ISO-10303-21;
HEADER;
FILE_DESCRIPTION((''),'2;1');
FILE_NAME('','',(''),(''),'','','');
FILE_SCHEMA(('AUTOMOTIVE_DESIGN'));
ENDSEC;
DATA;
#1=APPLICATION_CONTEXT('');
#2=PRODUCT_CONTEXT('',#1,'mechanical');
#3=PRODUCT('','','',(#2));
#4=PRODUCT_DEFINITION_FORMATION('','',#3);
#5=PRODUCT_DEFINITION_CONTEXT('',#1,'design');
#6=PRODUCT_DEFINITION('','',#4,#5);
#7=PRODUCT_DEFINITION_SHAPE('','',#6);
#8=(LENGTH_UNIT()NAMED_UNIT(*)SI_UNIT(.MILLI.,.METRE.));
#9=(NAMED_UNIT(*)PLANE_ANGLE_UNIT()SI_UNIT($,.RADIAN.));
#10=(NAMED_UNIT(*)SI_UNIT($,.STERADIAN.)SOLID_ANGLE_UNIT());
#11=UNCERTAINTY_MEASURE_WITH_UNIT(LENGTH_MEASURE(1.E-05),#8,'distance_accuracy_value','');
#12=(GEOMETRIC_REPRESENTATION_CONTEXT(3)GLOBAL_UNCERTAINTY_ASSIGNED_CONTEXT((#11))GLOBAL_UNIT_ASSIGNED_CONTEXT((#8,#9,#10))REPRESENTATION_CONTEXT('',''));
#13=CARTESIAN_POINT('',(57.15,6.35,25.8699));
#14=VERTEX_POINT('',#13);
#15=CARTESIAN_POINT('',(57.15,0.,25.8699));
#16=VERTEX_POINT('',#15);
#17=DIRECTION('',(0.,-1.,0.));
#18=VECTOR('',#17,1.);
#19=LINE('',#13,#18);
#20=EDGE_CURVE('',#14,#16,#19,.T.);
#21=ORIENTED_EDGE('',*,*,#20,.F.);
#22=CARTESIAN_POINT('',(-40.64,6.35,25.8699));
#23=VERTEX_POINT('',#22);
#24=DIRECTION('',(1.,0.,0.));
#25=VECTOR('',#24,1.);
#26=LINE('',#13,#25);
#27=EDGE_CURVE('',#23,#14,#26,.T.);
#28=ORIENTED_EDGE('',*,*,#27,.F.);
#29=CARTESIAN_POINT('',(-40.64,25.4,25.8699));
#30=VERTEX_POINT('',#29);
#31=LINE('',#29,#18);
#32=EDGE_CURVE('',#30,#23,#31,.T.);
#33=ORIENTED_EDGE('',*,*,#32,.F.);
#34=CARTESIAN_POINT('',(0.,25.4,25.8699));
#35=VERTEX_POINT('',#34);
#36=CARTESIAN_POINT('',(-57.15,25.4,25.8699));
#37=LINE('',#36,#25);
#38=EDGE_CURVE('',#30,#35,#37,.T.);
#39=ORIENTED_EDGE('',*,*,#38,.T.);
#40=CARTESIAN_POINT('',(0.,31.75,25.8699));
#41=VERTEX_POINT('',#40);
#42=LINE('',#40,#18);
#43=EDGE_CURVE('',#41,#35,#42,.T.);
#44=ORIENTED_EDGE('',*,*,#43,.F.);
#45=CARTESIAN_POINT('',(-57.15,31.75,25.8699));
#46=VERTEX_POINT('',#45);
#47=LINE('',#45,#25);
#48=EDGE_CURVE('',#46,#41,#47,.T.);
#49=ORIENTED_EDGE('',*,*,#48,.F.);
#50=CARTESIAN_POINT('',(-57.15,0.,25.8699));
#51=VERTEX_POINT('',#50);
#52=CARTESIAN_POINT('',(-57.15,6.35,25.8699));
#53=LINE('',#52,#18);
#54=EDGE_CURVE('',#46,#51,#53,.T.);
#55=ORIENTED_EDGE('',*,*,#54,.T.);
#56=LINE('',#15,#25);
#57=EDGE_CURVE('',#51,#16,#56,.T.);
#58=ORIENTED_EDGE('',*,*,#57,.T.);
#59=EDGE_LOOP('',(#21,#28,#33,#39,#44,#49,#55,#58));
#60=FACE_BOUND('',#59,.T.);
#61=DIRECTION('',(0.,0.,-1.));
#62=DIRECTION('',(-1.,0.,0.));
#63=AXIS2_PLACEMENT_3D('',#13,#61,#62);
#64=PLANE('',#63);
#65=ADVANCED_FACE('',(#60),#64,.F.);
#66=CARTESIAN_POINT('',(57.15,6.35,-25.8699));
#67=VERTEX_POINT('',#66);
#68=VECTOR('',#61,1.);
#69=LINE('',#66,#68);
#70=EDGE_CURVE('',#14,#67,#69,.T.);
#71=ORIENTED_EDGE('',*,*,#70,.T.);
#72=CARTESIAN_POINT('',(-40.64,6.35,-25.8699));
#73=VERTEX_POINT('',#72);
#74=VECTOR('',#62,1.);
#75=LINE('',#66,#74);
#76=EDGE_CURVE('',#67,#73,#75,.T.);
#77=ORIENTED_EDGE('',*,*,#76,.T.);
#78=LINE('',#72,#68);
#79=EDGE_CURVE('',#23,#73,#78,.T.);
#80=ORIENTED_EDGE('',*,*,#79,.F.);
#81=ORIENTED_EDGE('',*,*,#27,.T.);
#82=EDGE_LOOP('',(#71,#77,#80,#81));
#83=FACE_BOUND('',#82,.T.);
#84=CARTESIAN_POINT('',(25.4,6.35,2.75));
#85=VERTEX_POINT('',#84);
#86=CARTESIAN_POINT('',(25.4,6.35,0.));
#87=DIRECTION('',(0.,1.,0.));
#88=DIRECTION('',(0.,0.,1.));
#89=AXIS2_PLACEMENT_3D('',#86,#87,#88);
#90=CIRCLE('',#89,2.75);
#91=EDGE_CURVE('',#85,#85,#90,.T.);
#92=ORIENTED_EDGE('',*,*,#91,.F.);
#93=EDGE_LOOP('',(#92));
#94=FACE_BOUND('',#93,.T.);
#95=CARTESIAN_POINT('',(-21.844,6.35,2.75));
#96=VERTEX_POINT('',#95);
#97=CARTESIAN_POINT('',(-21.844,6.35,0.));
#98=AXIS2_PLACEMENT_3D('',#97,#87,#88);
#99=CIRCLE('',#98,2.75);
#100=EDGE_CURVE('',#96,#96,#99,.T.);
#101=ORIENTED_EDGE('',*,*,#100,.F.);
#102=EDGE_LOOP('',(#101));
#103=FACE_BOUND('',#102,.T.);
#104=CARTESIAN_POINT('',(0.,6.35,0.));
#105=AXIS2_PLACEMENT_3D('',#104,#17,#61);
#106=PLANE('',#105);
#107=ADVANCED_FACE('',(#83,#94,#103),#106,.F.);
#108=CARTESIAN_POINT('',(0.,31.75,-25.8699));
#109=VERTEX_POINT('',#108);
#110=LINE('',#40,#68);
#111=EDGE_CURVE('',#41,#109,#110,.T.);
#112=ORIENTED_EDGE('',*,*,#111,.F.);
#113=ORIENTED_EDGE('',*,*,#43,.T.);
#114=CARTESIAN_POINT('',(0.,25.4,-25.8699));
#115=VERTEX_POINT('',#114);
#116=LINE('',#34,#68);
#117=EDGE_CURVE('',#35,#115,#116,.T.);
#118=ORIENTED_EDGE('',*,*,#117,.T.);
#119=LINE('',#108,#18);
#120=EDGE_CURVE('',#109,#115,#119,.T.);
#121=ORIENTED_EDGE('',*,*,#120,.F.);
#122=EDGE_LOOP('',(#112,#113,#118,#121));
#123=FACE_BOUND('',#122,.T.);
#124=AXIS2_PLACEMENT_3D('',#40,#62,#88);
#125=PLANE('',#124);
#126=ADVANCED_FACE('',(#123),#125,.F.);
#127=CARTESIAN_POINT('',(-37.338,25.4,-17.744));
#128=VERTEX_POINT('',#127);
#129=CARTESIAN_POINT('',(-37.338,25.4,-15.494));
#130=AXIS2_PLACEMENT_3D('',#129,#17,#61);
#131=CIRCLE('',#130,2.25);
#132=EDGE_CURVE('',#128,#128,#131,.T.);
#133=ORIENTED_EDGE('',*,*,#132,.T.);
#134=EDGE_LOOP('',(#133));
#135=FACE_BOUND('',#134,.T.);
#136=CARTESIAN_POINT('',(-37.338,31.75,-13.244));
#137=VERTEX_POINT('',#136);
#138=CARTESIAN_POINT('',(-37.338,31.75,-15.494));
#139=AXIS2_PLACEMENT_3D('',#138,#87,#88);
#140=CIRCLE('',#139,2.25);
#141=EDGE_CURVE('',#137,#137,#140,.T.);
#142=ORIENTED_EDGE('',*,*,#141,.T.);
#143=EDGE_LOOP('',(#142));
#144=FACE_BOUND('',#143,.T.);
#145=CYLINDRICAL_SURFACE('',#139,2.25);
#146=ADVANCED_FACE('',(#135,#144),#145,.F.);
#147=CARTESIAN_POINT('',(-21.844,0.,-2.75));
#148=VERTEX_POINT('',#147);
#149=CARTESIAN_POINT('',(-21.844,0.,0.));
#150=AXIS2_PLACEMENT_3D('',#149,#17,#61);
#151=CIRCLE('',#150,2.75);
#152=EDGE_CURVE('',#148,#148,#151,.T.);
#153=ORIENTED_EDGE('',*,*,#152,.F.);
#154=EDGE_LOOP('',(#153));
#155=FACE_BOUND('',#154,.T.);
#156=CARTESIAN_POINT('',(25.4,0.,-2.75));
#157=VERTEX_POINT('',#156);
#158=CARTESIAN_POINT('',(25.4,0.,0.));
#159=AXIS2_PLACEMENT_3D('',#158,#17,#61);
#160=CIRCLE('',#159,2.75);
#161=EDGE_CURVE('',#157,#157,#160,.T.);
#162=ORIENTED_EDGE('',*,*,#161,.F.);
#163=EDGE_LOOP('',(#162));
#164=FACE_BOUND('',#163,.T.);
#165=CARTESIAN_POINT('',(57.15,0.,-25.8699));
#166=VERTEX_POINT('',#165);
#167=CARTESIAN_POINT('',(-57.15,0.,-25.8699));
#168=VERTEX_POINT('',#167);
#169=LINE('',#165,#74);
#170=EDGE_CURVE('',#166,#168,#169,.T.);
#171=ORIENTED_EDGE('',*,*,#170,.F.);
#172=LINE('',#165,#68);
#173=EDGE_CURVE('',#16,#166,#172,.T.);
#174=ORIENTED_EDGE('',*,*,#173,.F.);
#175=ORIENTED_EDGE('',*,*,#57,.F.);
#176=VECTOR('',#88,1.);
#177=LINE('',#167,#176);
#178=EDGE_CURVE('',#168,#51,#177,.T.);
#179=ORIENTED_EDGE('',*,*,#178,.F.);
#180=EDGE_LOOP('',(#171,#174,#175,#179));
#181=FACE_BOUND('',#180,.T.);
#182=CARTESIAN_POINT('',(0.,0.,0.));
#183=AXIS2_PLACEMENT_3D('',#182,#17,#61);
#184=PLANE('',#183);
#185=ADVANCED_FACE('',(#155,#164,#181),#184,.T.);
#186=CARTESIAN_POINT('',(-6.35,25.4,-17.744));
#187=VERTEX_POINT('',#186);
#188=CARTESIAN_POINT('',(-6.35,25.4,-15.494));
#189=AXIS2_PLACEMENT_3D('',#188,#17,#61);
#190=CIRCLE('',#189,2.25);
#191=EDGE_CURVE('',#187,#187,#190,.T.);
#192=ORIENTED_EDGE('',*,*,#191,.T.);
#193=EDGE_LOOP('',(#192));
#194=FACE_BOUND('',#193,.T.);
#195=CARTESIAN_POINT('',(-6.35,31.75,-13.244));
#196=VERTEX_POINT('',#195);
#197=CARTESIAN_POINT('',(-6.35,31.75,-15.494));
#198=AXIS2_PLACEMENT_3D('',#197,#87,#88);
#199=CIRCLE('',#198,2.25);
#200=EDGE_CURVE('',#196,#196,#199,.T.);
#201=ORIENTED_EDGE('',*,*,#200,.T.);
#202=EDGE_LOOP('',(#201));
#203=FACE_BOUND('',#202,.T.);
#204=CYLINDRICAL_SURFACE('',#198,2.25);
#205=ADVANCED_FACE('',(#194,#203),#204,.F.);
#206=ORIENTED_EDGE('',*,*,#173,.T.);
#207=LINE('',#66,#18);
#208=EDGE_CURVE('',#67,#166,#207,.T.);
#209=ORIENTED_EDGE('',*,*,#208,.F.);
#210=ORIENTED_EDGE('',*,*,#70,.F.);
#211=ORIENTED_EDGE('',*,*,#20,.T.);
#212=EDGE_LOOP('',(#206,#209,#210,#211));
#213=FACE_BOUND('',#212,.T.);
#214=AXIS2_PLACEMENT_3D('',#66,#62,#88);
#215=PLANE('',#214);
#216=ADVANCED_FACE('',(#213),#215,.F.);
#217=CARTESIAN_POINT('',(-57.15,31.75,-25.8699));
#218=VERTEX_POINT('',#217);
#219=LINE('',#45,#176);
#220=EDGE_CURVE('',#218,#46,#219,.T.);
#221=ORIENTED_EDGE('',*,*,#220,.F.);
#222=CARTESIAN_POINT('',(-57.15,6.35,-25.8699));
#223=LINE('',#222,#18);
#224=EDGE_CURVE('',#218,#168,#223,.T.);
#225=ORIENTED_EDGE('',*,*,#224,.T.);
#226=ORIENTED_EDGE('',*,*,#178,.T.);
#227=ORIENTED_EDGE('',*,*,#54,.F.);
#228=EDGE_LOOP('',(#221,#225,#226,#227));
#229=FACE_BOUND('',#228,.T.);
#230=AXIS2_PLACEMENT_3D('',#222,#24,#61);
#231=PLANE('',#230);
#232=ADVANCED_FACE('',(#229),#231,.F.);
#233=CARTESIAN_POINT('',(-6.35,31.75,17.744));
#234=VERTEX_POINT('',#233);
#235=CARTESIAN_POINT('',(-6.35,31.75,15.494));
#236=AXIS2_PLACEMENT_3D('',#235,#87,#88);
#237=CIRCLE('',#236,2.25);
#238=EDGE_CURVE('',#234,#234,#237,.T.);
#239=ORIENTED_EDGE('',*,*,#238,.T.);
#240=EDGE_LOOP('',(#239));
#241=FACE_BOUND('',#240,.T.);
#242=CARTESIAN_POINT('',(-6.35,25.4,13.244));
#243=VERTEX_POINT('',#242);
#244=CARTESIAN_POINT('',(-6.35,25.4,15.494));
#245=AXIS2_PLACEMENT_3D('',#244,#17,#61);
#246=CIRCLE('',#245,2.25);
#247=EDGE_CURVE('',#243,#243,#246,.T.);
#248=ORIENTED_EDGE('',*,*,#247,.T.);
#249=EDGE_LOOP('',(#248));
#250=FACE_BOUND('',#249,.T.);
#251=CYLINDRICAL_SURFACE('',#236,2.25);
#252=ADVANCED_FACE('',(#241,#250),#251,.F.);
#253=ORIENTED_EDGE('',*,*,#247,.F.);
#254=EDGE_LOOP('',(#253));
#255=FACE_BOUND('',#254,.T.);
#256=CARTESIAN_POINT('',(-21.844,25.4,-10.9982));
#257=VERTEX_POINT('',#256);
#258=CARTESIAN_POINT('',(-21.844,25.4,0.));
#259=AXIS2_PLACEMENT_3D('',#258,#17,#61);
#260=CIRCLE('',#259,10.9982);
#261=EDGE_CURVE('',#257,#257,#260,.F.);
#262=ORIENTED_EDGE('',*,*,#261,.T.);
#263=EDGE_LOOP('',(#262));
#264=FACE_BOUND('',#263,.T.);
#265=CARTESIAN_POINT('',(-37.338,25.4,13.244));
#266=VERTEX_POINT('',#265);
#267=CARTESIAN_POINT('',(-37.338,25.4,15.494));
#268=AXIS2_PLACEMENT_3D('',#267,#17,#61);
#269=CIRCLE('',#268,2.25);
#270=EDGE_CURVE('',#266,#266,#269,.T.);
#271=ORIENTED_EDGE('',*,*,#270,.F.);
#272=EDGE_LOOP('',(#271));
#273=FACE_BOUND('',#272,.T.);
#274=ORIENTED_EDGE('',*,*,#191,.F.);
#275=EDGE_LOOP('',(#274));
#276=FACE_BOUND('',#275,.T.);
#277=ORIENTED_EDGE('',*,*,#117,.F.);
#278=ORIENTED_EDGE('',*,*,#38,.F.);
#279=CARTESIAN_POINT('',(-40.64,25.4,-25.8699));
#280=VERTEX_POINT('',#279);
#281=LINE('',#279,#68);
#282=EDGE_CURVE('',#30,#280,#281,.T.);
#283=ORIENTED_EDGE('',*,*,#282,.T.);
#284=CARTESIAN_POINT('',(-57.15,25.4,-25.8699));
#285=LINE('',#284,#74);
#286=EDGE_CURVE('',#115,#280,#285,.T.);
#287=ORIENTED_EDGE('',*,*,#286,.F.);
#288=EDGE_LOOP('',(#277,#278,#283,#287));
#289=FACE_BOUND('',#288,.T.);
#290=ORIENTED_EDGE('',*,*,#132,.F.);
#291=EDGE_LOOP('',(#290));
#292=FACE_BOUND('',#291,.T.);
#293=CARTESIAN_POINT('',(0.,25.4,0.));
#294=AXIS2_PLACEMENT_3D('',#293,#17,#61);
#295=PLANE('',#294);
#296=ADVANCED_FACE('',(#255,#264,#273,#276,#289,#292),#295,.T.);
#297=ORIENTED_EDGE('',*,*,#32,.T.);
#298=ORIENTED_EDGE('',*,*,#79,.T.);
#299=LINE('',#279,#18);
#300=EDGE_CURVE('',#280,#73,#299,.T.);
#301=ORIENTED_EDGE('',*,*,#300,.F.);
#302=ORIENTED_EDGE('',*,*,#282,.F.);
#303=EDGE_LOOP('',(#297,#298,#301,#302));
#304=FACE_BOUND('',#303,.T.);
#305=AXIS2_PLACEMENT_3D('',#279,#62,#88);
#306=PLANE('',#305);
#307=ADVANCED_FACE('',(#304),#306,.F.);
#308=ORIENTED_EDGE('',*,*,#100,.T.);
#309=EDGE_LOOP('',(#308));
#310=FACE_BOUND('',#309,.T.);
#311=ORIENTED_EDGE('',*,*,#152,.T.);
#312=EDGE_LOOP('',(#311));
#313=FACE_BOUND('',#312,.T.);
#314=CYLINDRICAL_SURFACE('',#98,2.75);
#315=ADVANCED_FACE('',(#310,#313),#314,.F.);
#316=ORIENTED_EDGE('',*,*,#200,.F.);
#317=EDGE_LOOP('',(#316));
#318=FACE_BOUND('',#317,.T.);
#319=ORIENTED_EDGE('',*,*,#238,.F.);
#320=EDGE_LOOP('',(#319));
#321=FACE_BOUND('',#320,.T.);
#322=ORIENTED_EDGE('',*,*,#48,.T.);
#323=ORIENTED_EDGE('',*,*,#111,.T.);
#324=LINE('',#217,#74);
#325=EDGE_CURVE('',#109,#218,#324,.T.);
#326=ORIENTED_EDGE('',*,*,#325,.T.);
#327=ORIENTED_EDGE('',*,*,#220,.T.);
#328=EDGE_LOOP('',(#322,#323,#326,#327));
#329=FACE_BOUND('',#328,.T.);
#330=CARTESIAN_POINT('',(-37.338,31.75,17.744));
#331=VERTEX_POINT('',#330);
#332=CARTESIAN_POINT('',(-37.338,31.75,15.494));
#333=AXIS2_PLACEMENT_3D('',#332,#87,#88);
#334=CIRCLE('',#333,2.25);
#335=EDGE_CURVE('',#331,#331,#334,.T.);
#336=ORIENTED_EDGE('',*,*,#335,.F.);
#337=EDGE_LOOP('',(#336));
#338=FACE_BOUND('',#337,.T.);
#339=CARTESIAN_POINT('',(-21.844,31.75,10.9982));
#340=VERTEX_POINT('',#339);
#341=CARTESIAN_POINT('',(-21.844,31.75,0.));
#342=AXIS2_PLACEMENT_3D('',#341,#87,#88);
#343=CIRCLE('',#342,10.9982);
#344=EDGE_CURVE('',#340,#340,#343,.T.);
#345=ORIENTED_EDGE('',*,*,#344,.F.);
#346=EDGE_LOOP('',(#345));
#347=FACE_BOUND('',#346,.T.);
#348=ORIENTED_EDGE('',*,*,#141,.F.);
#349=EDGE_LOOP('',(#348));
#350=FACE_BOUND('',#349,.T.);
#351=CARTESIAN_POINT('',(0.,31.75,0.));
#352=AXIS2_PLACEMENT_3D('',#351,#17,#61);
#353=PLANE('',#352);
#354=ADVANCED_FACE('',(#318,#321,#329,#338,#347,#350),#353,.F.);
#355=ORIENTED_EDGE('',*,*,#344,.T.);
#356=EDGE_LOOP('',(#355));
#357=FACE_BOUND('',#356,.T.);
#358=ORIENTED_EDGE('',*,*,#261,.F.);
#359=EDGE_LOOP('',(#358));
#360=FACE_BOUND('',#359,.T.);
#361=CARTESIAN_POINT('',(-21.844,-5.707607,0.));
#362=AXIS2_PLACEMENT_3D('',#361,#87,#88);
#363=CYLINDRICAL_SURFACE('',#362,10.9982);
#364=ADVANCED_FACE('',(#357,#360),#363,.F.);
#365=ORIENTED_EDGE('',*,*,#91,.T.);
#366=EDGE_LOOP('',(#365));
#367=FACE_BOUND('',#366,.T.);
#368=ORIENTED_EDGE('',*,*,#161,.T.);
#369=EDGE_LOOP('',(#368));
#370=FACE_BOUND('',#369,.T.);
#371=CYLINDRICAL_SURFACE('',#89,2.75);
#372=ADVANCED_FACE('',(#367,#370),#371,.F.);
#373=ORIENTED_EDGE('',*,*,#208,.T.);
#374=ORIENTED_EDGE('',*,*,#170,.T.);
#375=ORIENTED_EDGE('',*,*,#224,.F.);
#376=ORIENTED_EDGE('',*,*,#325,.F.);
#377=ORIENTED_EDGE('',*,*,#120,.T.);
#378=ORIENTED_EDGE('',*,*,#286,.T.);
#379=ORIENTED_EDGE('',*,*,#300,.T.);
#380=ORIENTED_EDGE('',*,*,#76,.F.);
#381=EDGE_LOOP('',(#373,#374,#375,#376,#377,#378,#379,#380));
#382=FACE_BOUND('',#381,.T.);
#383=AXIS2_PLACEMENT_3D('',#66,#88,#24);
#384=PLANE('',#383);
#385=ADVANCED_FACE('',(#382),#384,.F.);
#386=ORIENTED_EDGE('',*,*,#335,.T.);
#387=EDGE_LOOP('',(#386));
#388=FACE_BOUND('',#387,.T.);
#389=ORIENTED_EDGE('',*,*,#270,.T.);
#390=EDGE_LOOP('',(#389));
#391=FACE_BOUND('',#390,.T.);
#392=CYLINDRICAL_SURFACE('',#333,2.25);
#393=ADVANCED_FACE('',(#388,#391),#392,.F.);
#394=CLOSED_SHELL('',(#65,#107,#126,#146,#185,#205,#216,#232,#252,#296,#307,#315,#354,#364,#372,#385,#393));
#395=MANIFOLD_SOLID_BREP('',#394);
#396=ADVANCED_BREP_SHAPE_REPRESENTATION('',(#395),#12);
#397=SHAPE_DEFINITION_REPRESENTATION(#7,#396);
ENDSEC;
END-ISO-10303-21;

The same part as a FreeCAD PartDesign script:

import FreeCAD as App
import Part
import Sketcher
Q = App.Units.Quantity

doc = App.newDocument("Part")
body = doc.addObject("PartDesign::Body", "Body")

# Sketch on XZ plane
sketch1 = doc.addObject("Sketcher::SketchObject", "Sketch")
body.addObject(sketch1)
sketch1.AttachmentSupport = (doc.XZ_Plane, [""])
sketch1.MapMode = "FlatFace"
sketch1.addGeometry([
    Part.LineSegment(App.Vector(-57, -26, 0), App.Vector(-57, 26, 0)),
    Part.LineSegment(App.Vector(-57, 26, 0), App.Vector(57, 26, 0)),
    Part.LineSegment(App.Vector(57, 26, 0), App.Vector(57, -26, 0)),
    Part.LineSegment(App.Vector(57, -26, 0), App.Vector(-57, -26, 0)),
], False)
sketch1.addConstraint([
    Sketcher.Constraint("Coincident", 0, 2, 1, 1),
    Sketcher.Constraint("Coincident", 1, 2, 2, 1),
    Sketcher.Constraint("Coincident", 2, 2, 3, 1),
    Sketcher.Constraint("Coincident", 3, 2, 0, 1),
    Sketcher.Constraint("Vertical", 0),
    Sketcher.Constraint("Horizontal", 1),
    Sketcher.Constraint("Vertical", 2),
    Sketcher.Constraint("Horizontal", 3),
    Sketcher.Constraint("Symmetric", 0, 2, 2, 2, -1, 1),
    Sketcher.Constraint("DistanceX", 1, 1, 1, 2, Q("4.5 in")),
    Sketcher.Constraint("DistanceY", 0, 1, 0, 2, Q("2.037 in")),
])
pad1 = doc.addObject("PartDesign::Pad", "Pad")
body.addObject(pad1)
pad1.Profile = sketch1
pad1.Length = Q("0.25 in")
pad1.Reversed = True

# Sketch on XZ plane
sketch2 = doc.addObject("Sketcher::SketchObject", "Sketch001")
body.addObject(sketch2)
sketch2.AttachmentSupport = (doc.XZ_Plane, [""])
sketch2.MapMode = "FlatFace"
sketch2.AttachmentOffset = App.Placement(App.Vector(0, 0, -0.25 * 25.4), App.Rotation())
sketch2.addGeometry([
    Part.Circle(App.Vector(25.4, 0, 0), App.Vector(0, 0, 1), 2.8),
    Part.Circle(App.Vector(-21.8, 0, 0), App.Vector(0, 0, 1), 2.8),
], False)
sketch2.addConstraint([
    Sketcher.Constraint("Equal", 0, 1),
    Sketcher.Constraint("PointOnObject", 0, 3, -1),
    Sketcher.Constraint("PointOnObject", 1, 3, -1),
    Sketcher.Constraint("DistanceX", -1, 1, 0, 3, Q("1 in")),
    Sketcher.Constraint("Diameter", 0, Q("5.5 mm")),
    Sketcher.Constraint("DistanceX", 1, 3, -1, 1, Q("0.86 in")),
])
doc.recompute()
hole = doc.addObject("PartDesign::Hole", "Hole")
body.addObject(hole)
hole.Profile = sketch2
hole.ThreadType = "None"
hole.Diameter = 5.5
hole.DepthType = "Dimension"
hole.Depth = Q("0.25 in")
hole.DrillPoint = "Flat"
hole.Reversed = True

# Sketch on XZ plane
sketch3 = doc.addObject("Sketcher::SketchObject", "Sketch002")
body.addObject(sketch3)
sketch3.AttachmentSupport = (doc.XZ_Plane, [""])
sketch3.MapMode = "FlatFace"
sketch3.AttachmentOffset = App.Placement(App.Vector(0, 0, -0.25 * 25.4), App.Rotation())
sketch3.addGeometry([
    Part.LineSegment(App.Vector(-57, -26, 0), App.Vector(-57, 26, 0)),
    Part.LineSegment(App.Vector(-57, 26, 0), App.Vector(-41, 26, 0)),
    Part.LineSegment(App.Vector(-41, 26, 0), App.Vector(-41, -26, 0)),
    Part.LineSegment(App.Vector(-41, -26, 0), App.Vector(-57, -26, 0)),
], False)
sketch3.addConstraint([
    Sketcher.Constraint("Coincident", 0, 2, 1, 1),
    Sketcher.Constraint("Coincident", 1, 2, 2, 1),
    Sketcher.Constraint("Coincident", 2, 2, 3, 1),
    Sketcher.Constraint("Coincident", 3, 2, 0, 1),
    Sketcher.Constraint("Vertical", 0),
    Sketcher.Constraint("Horizontal", 1),
    Sketcher.Constraint("Vertical", 2),
    Sketcher.Constraint("Horizontal", 3),
    Sketcher.Constraint("DistanceX", 1, 1, 1, 2, Q("0.65 in")),
    Sketcher.Constraint("DistanceX", 1, 2, -1, 1, Q("1.6 in")),
    Sketcher.Constraint("DistanceY", 0, 1, 0, 2, Q("2.037 in")),
    Sketcher.Constraint("DistanceY", -1, 1, 0, 2, Q("1.0185 in")),
])
pad2 = doc.addObject("PartDesign::Pad", "Pad001")
body.addObject(pad2)
pad2.Profile = sketch3
pad2.Length = Q("0.75 in")
pad2.Reversed = True

# Sketch on XZ plane
sketch4 = doc.addObject("Sketcher::SketchObject", "Sketch003")
body.addObject(sketch4)
sketch4.AttachmentSupport = (doc.XZ_Plane, [""])
sketch4.MapMode = "FlatFace"
sketch4.AttachmentOffset = App.Placement(App.Vector(0, 0, -1 * 25.4), App.Rotation())
sketch4.addGeometry([
    Part.LineSegment(App.Vector(-57, -26, 0), App.Vector(-57, 26, 0)),
    Part.LineSegment(App.Vector(-57, 26, 0), App.Vector(0, 26, 0)),
    Part.LineSegment(App.Vector(0, 26, 0), App.Vector(0, -26, 0)),
    Part.LineSegment(App.Vector(0, -26, 0), App.Vector(-57, -26, 0)),
], False)
sketch4.addConstraint([
    Sketcher.Constraint("Coincident", 0, 2, 1, 1),
    Sketcher.Constraint("Coincident", 1, 2, 2, 1),
    Sketcher.Constraint("Coincident", 2, 2, 3, 1),
    Sketcher.Constraint("Coincident", 3, 2, 0, 1),
    Sketcher.Constraint("Vertical", 0),
    Sketcher.Constraint("Horizontal", 1),
    Sketcher.Constraint("Vertical", 2),
    Sketcher.Constraint("Horizontal", 3),
    Sketcher.Constraint("Symmetric", 1, 2, 2, 2, -1, 1),
    Sketcher.Constraint("DistanceX", 1, 1, 1, 2, Q("2.25 in")),
    Sketcher.Constraint("DistanceY", 0, 1, 0, 2, Q("2.037 in")),
])
pad3 = doc.addObject("PartDesign::Pad", "Pad002")
body.addObject(pad3)
pad3.Profile = sketch4
pad3.Length = Q("0.25 in")
pad3.Reversed = True

# Sketch on XZ plane
sketch5 = doc.addObject("Sketcher::SketchObject", "Sketch004")
body.addObject(sketch5)
sketch5.AttachmentSupport = (doc.XZ_Plane, [""])
sketch5.MapMode = "FlatFace"
sketch5.AttachmentOffset = App.Placement(App.Vector(0, 0, -1.25 * 25.4), App.Rotation())
sketch5.addGeometry(Part.Circle(App.Vector(-22, 0, 0), App.Vector(0, 0, 1), 11), False)
sketch5.addConstraint([
    Sketcher.Constraint("PointOnObject", 0, 3, -1),
    Sketcher.Constraint("Diameter", 0, Q("0.866 in")),
    Sketcher.Constraint("DistanceX", 0, 3, -1, 1, Q("0.86 in")),
])
pocket1 = doc.addObject("PartDesign::Pocket", "Pocket")
body.addObject(pocket1)
pocket1.Profile = sketch5
pocket1.Length = Q("0.25 in")
pocket1.Reversed = True

# Sketch on XZ plane
sketch6 = doc.addObject("Sketcher::SketchObject", "Sketch005")
body.addObject(sketch6)
sketch6.AttachmentSupport = (doc.XZ_Plane, [""])
sketch6.MapMode = "FlatFace"
sketch6.AttachmentOffset = App.Placement(App.Vector(0, 0, -1.25 * 25.4), App.Rotation())
sketch6.addGeometry([
    Part.Circle(App.Vector(-6.3, -15.5, 0), App.Vector(0, 0, 1), 2.2),
    Part.Circle(App.Vector(-37.3, -15.5, 0), App.Vector(0, 0, 1), 2.2),
    Part.Circle(App.Vector(-37.3, 15.5, 0), App.Vector(0, 0, 1), 2.2),
    Part.Circle(App.Vector(-6.3, 15.5, 0), App.Vector(0, 0, 1), 2.2),
], False)
sketch6.addConstraint([
    Sketcher.Constraint("Equal", 0, 1),
    Sketcher.Constraint("Equal", 1, 2),
    Sketcher.Constraint("Equal", 2, 3),
    Sketcher.Constraint("Symmetric", 1, 3, 2, 3, -1),
    Sketcher.Constraint("Symmetric", 0, 3, 3, 3, -1),
    Sketcher.Constraint("Horizontal", 0, 3, 1, 3),
    Sketcher.Constraint("Diameter", 0, Q("4.5 mm")),
    Sketcher.Constraint("DistanceX", 0, 3, -1, 1, Q("0.25 in")),
    Sketcher.Constraint("DistanceY", 0, 3, -1, 1, Q("0.61 in")),
    Sketcher.Constraint("DistanceX", 1, 3, -1, 1, Q("1.47 in")),
])
doc.recompute()
hole2 = doc.addObject("PartDesign::Hole", "Hole001")
body.addObject(hole2)
hole2.Profile = sketch6
hole2.ThreadType = "None"
hole2.Diameter = 4.5
hole2.DepthType = "Dimension"
hole2.Depth = Q("0.25 in")
hole2.DrillPoint = "Flat"
hole2.Reversed = True

doc.recompute()
